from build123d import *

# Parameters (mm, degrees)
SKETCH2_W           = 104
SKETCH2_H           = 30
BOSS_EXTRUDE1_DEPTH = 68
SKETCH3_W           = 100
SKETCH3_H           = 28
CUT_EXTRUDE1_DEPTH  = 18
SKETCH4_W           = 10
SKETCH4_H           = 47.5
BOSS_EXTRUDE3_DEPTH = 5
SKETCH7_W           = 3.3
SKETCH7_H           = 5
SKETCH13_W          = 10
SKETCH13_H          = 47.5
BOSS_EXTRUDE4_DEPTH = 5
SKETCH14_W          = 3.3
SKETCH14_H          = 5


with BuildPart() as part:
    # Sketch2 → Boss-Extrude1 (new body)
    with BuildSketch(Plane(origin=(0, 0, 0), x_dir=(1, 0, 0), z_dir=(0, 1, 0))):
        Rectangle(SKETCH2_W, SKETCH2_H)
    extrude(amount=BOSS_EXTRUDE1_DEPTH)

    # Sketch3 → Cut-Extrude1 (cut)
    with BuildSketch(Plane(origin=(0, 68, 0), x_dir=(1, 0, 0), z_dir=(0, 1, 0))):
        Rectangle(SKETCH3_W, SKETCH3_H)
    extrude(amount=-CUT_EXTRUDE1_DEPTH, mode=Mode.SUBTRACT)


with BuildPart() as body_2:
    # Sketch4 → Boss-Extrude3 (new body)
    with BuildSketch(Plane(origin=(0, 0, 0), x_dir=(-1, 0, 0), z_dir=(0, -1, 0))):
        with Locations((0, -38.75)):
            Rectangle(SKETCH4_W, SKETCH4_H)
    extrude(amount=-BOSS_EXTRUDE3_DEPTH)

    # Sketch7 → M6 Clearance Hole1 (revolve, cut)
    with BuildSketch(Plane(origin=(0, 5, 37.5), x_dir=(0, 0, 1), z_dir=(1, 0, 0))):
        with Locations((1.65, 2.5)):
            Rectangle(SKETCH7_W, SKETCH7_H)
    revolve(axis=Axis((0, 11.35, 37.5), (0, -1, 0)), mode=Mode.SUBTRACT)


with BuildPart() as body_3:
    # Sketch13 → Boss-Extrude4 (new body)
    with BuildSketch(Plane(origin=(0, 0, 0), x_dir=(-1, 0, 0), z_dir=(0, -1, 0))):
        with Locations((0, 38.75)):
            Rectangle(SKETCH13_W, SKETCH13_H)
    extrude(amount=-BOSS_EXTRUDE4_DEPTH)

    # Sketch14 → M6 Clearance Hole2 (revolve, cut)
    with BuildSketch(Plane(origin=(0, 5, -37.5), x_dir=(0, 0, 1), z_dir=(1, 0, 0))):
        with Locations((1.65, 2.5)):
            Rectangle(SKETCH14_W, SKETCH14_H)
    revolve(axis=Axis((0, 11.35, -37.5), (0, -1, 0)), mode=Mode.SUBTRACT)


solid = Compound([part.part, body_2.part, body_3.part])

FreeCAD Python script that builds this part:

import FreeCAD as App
import Part
import Sketcher


def add_polygon(sketch, points):
    """Adds a closed chain of lines whose ends are joined by coincident constraints."""
    first, n = sketch.GeometryCount, len(points)
    for a, b in zip(points, points[1:] + points[:1]):
        sketch.addGeometry(Part.LineSegment(App.Vector(*a, 0), App.Vector(*b, 0)), False)
    for i in range(n):
        sketch.addConstraint(Sketcher.Constraint("Coincident", first + i, 2, first + (i + 1) % n, 1))

doc = App.newDocument("Part")
body = doc.addObject("PartDesign::Body", "Body")

sketch1 = doc.addObject("Sketcher::SketchObject", "Sketch")
body.addObject(sketch1)
sketch1.AttachmentSupport = (doc.XZ_Plane, [""])
sketch1.MapMode = "FlatFace"
add_polygon(sketch1, [(-52, -15), (-52, 15), (52, 15), (52, -15)])
sketch1.addConstraint([
    Sketcher.Constraint("Vertical", 0),
    Sketcher.Constraint("Horizontal", 1),
    Sketcher.Constraint("Vertical", 2),
    Sketcher.Constraint("Horizontal", 3),
    Sketcher.Constraint("Symmetric", 0, 2, 2, 2, -1, 1),
    Sketcher.Constraint("DistanceX", 1, 1, 1, 2, 104.0),
    Sketcher.Constraint("DistanceY", 0, 1, 0, 2, 30.0),
])
pad1 = doc.addObject("PartDesign::Pad", "Pad")
body.addObject(pad1)
pad1.Profile = sketch1
pad1.Length = 68
pad1.Reversed = True

sketch2 = doc.addObject("Sketcher::SketchObject", "Sketch001")
body.addObject(sketch2)
sketch2.AttachmentSupport = (doc.XZ_Plane, [""])
sketch2.MapMode = "FlatFace"
sketch2.AttachmentOffset = App.Placement(App.Vector(0, 0, -68), App.Rotation())
add_polygon(sketch2, [(-50, -14), (-50, 14), (50, 14), (50, -14)])
sketch2.addConstraint([
    Sketcher.Constraint("Vertical", 0),
    Sketcher.Constraint("Horizontal", 1),
    Sketcher.Constraint("Vertical", 2),
    Sketcher.Constraint("Horizontal", 3),
    Sketcher.Constraint("Symmetric", 0, 2, 2, 2, -1, 1),
    Sketcher.Constraint("DistanceX", 1, 1, 1, 2, 100.0),
    Sketcher.Constraint("DistanceY", 0, 1, 0, 2, 28.0),
])
pocket1 = doc.addObject("PartDesign::Pocket", "Pocket")
body.addObject(pocket1)
pocket1.Profile = sketch2
pocket1.Length = 18
pocket1.Reversed = True
body2 = doc.addObject("PartDesign::Body", "Body001")

sketch3 = doc.addObject("Sketcher::SketchObject", "Sketch002")
body2.addObject(sketch3)
sketch3.AttachmentSupport = (doc.getObject("XZ_Plane001"), [""])
sketch3.MapMode = "FlatFace"
add_polygon(sketch3, [(5, 15), (5, 62), (-5, 62), (-5, 15)])
sketch3.addConstraint([
    Sketcher.Constraint("Vertical", 0),
    Sketcher.Constraint("Horizontal", 1),
    Sketcher.Constraint("Vertical", 2),
    Sketcher.Constraint("Horizontal", 3),
    Sketcher.Constraint("DistanceX", 1, 2, 1, 1, 10.0),
    Sketcher.Constraint("DistanceY", 0, 1, 0, 2, 47.5),
    Sketcher.Constraint("DistanceX", -1, 1, 0, 2, 5.0),
    Sketcher.Constraint("DistanceY", -1, 1, 2, 2, 15.0),
])
pad2 = doc.addObject("PartDesign::Pad", "Pad001")
body2.addObject(pad2)
pad2.Profile = sketch3
pad2.Length = 5
pad2.Reversed = True

sketch4 = doc.addObject("Sketcher::SketchObject", "Sketch003")
body2.addObject(sketch4)
sketch4.AttachmentSupport = (doc.getObject("YZ_Plane001"), [""])
sketch4.MapMode = "FlatFace"
add_polygon(sketch4, [(0, 37.5), (5, 37.5), (5, 40.8), (0, 40.8)])
sketch4.addGeometry(Part.LineSegment(App.Vector(5, 37.5, 0), App.Vector(0, 37.5, 0)), True)
sketch4.addConstraint([
    Sketcher.Constraint("Horizontal", 0),
    Sketcher.Constraint("Vertical", 1),
    Sketcher.Constraint("Horizontal", 2),
    Sketcher.Constraint("Vertical", 3),
    Sketcher.Constraint("Horizontal", 4),
    Sketcher.Constraint("Coincident", 4, 1, 0, 2),
    Sketcher.Constraint("PointOnObject", 2, 2, -2),
    Sketcher.Constraint("PointOnObject", 4, 2, -2),
    Sketcher.Constraint("DistanceX", 0, 1, 0, 2, 5.0),
    Sketcher.Constraint("DistanceY", 1, 1, 1, 2, 3.3),
    Sketcher.Constraint("DistanceY", -1, 1, 0, 2, 37.5),
])
groove = doc.addObject("PartDesign::Groove", "Groove")
body2.addObject(groove)
groove.Profile = sketch4
groove.ReferenceAxis = (sketch4, ["Axis0"])
groove.Angle = 360
body3 = doc.addObject("PartDesign::Body", "Body002")

sketch5 = doc.addObject("Sketcher::SketchObject", "Sketch004")
body3.addObject(sketch5)
sketch5.AttachmentSupport = (doc.getObject("XZ_Plane002"), [""])
sketch5.MapMode = "FlatFace"
add_polygon(sketch5, [(5, -62), (5, -15), (-5, -15), (-5, -62)])
sketch5.addConstraint([
    Sketcher.Constraint("Vertical", 0),
    Sketcher.Constraint("Horizontal", 1),
    Sketcher.Constraint("Vertical", 2),
    Sketcher.Constraint("Horizontal", 3),
    Sketcher.Constraint("DistanceX", 1, 2, 1, 1, 10.0),
    Sketcher.Constraint("DistanceY", 0, 1, 0, 2, 47.5),
    Sketcher.Constraint("DistanceX", -1, 1, 0, 2, 5.0),
    Sketcher.Constraint("DistanceY", 0, 2, -1, 1, 15.0),
])
pad3 = doc.addObject("PartDesign::Pad", "Pad002")
body3.addObject(pad3)
pad3.Profile = sketch5
pad3.Length = 5
pad3.Reversed = True

sketch6 = doc.addObject("Sketcher::SketchObject", "Sketch005")
body3.addObject(sketch6)
sketch6.AttachmentSupport = (doc.getObject("YZ_Plane002"), [""])
sketch6.MapMode = "FlatFace"
add_polygon(sketch6, [(0, -37.5), (5, -37.5), (5, -34.2), (0, -34.2)])
sketch6.addGeometry(Part.LineSegment(App.Vector(5, -37.5, 0), App.Vector(0, -37.5, 0)), True)
sketch6.addConstraint([
    Sketcher.Constraint("Horizontal", 0),
    Sketcher.Constraint("Vertical", 1),
    Sketcher.Constraint("Horizontal", 2),
    Sketcher.Constraint("Vertical", 3),
    Sketcher.Constraint("Horizontal", 4),
    Sketcher.Constraint("Coincident", 4, 1, 0, 2),
    Sketcher.Constraint("PointOnObject", 2, 2, -2),
    Sketcher.Constraint("PointOnObject", 4, 2, -2),
    Sketcher.Constraint("DistanceX", 0, 1, 0, 2, 5.0),
    Sketcher.Constraint("DistanceY", 1, 1, 1, 2, 3.3),
    Sketcher.Constraint("DistanceY", 0, 2, -1, 1, 37.5),
])
groove2 = doc.addObject("PartDesign::Groove", "Groove001")
body3.addObject(groove2)
groove2.Profile = sketch6
groove2.ReferenceAxis = (sketch6, ["Axis0"])
groove2.Angle = 360

doc.recompute()
